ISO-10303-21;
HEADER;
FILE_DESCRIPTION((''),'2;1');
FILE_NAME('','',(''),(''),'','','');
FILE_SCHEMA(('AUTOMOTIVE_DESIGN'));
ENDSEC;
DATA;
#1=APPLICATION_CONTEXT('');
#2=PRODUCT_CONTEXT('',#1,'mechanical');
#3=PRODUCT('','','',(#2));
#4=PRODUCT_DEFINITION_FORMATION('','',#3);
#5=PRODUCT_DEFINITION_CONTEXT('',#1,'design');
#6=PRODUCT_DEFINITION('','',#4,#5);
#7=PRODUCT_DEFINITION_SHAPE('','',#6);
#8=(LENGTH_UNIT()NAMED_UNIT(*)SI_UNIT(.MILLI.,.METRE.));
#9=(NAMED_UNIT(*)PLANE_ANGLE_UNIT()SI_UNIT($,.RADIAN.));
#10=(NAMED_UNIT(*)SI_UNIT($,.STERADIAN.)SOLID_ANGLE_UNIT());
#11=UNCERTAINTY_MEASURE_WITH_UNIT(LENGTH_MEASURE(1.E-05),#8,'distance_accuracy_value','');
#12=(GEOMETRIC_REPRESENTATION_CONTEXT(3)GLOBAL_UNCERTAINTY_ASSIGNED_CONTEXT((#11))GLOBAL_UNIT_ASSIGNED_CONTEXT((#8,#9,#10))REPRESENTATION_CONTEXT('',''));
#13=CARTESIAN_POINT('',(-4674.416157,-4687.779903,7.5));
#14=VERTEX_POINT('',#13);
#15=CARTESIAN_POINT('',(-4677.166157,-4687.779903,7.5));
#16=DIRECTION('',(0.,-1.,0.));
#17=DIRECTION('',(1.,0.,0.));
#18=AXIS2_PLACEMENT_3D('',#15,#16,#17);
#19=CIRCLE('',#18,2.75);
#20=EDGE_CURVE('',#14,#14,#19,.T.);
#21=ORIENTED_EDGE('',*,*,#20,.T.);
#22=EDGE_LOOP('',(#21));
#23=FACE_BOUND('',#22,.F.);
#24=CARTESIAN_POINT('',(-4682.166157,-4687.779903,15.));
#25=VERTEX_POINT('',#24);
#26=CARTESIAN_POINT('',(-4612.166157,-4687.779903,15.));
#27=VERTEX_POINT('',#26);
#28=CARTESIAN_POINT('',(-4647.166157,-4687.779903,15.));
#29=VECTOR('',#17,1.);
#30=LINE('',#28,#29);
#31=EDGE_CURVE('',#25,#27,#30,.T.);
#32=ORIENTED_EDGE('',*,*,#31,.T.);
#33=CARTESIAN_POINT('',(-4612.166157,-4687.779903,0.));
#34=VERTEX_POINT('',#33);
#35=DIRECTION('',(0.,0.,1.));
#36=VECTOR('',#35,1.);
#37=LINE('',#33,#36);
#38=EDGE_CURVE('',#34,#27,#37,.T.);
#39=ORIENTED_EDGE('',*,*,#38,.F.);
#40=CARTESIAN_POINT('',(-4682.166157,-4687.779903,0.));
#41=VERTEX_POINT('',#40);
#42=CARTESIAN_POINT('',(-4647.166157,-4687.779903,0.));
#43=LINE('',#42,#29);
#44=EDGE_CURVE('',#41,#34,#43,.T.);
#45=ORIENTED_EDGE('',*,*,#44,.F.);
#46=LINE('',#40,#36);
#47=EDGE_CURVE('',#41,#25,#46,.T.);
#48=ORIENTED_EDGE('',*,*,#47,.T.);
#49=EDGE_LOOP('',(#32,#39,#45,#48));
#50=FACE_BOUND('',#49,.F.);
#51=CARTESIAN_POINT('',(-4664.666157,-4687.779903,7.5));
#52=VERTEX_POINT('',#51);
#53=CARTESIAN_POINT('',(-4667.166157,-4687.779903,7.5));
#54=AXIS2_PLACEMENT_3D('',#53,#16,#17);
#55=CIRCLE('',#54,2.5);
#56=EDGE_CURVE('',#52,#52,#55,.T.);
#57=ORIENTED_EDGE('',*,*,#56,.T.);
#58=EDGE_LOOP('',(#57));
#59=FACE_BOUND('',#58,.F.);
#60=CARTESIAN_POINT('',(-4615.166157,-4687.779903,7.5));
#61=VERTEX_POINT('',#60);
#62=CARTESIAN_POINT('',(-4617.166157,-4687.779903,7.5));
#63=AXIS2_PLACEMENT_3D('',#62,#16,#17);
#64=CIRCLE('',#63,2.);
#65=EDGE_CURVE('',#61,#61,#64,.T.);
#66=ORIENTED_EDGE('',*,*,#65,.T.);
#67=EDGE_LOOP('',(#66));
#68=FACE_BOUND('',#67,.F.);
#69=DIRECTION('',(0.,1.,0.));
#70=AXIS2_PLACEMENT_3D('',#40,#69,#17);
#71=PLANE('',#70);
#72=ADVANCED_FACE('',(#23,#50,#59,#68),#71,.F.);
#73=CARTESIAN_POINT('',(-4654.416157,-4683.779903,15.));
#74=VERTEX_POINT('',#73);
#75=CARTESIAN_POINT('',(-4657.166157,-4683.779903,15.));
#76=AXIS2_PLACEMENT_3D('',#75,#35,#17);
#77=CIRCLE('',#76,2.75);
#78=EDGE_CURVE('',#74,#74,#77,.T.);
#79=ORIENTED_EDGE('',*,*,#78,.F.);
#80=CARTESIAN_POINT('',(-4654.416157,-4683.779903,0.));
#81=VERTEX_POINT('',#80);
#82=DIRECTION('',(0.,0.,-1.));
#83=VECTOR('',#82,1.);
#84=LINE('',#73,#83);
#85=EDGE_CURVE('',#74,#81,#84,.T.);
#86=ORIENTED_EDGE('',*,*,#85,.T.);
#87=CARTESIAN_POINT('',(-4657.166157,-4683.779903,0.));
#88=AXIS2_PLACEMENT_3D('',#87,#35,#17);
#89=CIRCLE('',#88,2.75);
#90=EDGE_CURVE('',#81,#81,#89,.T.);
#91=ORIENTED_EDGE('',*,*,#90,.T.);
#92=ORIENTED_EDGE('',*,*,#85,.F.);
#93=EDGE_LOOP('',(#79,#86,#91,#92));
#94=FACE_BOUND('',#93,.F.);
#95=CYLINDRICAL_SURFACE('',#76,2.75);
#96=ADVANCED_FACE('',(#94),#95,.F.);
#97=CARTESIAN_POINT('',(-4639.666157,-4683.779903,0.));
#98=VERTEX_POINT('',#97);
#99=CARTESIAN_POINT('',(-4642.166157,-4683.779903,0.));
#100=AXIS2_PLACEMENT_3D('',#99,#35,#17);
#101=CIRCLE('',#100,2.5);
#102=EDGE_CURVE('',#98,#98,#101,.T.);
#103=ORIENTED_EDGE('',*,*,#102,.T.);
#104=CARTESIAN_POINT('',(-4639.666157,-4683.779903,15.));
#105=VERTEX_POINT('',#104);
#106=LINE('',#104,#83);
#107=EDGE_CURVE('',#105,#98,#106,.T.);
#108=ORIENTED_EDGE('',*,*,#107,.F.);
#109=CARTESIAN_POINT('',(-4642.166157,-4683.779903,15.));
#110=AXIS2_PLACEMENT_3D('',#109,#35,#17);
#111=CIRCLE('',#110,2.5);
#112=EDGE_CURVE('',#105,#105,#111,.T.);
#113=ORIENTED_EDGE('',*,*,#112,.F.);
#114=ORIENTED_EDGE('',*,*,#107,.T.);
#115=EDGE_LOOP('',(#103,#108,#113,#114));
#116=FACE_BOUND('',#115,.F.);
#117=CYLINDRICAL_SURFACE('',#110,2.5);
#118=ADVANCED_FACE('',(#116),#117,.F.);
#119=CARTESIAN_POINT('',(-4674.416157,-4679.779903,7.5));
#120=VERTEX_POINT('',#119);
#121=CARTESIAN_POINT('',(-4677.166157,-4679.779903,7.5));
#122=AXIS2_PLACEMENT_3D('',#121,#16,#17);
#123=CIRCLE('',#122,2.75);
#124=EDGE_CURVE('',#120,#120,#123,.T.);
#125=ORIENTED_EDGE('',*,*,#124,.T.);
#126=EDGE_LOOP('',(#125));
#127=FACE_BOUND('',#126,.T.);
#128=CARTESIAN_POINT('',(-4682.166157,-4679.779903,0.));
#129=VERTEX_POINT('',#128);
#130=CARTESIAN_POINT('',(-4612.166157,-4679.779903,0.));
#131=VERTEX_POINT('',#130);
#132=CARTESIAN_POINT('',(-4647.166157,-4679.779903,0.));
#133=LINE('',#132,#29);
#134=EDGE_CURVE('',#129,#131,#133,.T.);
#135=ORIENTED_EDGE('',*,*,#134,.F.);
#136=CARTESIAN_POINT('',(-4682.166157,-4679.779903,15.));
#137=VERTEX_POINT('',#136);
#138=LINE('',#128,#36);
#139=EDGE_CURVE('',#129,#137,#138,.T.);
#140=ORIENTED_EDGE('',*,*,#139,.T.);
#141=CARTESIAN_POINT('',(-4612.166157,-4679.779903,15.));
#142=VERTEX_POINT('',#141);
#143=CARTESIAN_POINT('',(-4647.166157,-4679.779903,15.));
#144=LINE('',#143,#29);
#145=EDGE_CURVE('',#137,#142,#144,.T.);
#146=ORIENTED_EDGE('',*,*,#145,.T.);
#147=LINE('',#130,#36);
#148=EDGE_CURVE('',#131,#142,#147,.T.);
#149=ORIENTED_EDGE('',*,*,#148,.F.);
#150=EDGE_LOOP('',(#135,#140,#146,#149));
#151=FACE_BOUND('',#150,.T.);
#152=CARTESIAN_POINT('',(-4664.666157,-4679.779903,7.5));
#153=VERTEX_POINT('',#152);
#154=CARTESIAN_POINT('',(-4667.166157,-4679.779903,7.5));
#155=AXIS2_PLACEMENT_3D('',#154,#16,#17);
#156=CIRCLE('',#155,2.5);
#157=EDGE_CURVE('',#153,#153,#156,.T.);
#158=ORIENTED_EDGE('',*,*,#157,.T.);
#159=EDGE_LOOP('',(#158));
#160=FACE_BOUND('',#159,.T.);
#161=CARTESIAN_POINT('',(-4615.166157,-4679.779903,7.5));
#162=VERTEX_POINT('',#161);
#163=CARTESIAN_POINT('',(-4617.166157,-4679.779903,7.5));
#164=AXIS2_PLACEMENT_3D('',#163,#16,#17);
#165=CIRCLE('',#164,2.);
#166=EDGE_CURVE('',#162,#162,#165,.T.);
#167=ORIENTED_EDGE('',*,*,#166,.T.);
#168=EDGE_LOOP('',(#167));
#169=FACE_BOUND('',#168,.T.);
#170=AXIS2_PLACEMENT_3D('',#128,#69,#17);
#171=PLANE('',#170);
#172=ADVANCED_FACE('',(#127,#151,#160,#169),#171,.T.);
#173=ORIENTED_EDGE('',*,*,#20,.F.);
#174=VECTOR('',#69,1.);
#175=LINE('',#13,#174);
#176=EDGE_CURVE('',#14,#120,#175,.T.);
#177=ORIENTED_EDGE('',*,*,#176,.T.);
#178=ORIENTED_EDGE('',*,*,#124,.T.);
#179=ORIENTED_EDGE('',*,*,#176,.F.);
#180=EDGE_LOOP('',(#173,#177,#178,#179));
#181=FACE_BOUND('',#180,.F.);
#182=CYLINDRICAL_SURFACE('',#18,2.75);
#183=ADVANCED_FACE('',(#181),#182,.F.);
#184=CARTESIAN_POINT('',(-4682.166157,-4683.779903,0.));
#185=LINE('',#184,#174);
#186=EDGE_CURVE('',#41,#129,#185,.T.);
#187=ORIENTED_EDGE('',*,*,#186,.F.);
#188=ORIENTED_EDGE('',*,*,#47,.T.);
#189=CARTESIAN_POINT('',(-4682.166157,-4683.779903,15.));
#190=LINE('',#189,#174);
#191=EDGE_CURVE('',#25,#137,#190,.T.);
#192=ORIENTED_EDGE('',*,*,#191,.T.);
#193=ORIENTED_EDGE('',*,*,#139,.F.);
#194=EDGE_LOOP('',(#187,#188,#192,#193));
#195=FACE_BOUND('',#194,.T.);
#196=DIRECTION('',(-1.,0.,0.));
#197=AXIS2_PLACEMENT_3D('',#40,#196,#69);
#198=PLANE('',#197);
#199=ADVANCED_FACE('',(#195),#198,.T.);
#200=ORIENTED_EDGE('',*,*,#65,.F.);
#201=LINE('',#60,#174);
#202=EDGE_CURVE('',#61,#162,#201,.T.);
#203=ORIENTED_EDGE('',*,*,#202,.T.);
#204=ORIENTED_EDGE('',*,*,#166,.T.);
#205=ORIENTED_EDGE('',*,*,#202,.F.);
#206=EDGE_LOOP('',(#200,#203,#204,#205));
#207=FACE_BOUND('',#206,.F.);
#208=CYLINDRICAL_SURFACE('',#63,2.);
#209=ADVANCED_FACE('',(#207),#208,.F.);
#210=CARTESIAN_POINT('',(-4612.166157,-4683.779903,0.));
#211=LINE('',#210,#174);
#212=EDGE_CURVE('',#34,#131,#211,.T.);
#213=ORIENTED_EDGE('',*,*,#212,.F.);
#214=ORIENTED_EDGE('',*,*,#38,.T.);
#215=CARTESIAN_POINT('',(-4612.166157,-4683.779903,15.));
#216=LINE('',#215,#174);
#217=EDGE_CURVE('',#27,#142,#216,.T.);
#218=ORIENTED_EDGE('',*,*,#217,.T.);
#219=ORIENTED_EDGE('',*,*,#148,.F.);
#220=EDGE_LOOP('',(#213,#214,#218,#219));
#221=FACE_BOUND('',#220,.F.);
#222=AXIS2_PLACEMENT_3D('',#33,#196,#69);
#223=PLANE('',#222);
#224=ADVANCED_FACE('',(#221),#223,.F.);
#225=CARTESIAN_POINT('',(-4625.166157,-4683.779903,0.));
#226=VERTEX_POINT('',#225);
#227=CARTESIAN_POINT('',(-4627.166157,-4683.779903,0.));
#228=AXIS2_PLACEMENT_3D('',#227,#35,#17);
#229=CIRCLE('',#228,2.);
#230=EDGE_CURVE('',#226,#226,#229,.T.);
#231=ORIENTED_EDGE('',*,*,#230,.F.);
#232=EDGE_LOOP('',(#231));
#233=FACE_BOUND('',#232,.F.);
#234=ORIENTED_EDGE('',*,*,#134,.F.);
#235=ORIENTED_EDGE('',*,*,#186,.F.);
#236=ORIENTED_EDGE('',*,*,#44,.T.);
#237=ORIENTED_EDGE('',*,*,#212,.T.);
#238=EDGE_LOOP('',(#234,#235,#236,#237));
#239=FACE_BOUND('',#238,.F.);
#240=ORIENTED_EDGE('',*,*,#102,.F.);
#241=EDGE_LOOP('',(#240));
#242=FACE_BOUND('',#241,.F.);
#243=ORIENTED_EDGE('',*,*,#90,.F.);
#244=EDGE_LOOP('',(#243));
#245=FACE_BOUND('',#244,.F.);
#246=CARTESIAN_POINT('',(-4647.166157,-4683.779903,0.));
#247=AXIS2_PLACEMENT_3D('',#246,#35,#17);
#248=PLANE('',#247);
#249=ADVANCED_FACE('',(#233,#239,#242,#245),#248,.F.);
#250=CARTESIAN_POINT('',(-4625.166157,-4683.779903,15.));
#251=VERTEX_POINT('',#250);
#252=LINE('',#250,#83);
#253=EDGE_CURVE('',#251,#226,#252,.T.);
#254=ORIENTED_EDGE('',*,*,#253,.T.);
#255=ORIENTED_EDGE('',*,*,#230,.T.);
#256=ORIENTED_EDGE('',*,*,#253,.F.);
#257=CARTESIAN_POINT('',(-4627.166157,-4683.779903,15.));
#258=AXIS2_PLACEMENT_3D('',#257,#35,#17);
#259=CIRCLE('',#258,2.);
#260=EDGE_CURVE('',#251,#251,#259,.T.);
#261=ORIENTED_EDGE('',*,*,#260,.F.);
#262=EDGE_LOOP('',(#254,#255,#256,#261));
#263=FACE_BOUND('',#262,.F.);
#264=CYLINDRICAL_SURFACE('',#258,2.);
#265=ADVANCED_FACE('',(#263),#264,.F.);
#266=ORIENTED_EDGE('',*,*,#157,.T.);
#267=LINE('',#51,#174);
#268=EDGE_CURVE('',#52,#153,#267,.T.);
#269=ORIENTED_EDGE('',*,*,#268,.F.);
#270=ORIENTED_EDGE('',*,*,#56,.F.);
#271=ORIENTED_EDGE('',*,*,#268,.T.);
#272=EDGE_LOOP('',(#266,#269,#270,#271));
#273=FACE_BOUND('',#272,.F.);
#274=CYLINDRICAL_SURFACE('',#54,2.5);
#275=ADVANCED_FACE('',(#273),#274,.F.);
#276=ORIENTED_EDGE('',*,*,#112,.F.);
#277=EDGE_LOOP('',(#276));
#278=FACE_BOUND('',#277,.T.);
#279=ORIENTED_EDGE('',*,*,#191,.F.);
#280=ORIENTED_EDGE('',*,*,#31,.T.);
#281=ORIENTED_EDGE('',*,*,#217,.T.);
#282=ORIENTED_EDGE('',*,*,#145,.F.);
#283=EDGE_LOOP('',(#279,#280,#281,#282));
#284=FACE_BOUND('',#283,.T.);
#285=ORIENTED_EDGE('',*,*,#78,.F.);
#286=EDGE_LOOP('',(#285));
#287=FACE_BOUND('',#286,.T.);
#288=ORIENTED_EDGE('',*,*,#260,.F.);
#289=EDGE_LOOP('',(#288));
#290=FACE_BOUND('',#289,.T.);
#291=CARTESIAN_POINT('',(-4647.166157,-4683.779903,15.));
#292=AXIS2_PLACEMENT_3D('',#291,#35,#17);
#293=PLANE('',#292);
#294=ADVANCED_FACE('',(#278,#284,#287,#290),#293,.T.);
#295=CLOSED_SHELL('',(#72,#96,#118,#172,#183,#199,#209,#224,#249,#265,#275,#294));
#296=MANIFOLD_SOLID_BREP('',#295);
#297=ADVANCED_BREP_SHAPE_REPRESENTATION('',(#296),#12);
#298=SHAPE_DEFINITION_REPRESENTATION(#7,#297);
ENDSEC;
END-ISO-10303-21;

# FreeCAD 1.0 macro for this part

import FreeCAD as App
import Part
import Sketcher
from FreeCAD import Vector
Q = App.Units.Quantity


def add_polygon(sketch, points):
    """Adds a closed chain of lines whose ends are joined by coincident constraints."""
    first, n = sketch.GeometryCount, len(points)
    for a, b in zip(points, points[1:] + points[:1]):
        sketch.addGeometry(Part.LineSegment(App.Vector(*a, 0), App.Vector(*b, 0)), False)
    for i in range(n):
        sketch.addConstraint(Sketcher.Constraint("Coincident", first + i, 2, first + (i + 1) % n, 1))

doc = App.newDocument("Part")
params = doc.addObject("Spreadsheet::Sheet", "Params")
for row, (alias, value) in enumerate([
    ("sketch1_width", "70 mm"),
    ("sketch1_height", "8 mm"),
    ("pad1_length", "15 mm"),
    ("sketch2_diameter", "4 mm"),
    ("sketch2_diameter2", "5 mm"),
    ("sketch2_diameter3", "5.5 mm"),
    ("pocket1_length", "8 mm"),
    ("sketch3_diameter", "5 mm"),
    ("sketch3_diameter2", "4 mm"),
    ("sketch3_diameter3", "5.5 mm"),
    ("pocket2_length", "25 mm"),
], start=1):
    params.set(f"A{row}", alias)
    params.set(f"B{row}", "=" + value)
    params.setAlias(f"B{row}", alias)

body = doc.addObject("PartDesign::Body", "Body")

# Sketch on XY plane
sketch1 = body.newObject("Sketcher::SketchObject", "Sketch")
sketch1.AttachmentSupport = (doc.getObject("XY_Plane"), [""])
sketch1.MapMode = "FlatFace"
add_polygon(sketch1, [(-4682.166157, -4679.779903), (-4682.166157, -4687.779903), (-4612.166157, -4687.779903), (-4612.166157, -4679.779903)])  # lines 0-3
sketch1.addConstraint([
    Sketcher.Constraint("Vertical", 0),
    Sketcher.Constraint("Horizontal", 1),
    Sketcher.Constraint("Vertical", 2),
    Sketcher.Constraint("Horizontal", 3),
    Sketcher.Constraint("DistanceX", 1, 1, 1, 2, Q("70 mm")),
    Sketcher.Constraint("DistanceY", 0, 2, 0, 1, Q("8 mm")),
    Sketcher.Constraint("DistanceX", 0, 2, -1, 1, Q("4682.166157 mm")),
    Sketcher.Constraint("DistanceY", 0, 2, -1, 1, Q("4687.779903 mm")),
])
sketch1.setExpression("Constraints[8]", "Params.sketch1_width")
sketch1.setExpression("Constraints[9]", "Params.sketch1_height")
pad1 = body.newObject("PartDesign::Pad", "Pad")
pad1.Profile = sketch1
pad1.setExpression("Length", "Params.pad1_length")

# Sketch on XZ plane
sketch2 = body.newObject("Sketcher::SketchObject", "Sketch001")
sketch2.AttachmentSupport = (doc.getObject("XZ_Plane"), [""])
sketch2.MapMode = "FlatFace"
sketch2.AttachmentOffset = App.Placement(Vector(0, 0, 4687.779903), App.Rotation())
sketch2.addGeometry([
    Part.Circle(Vector(-4677.166157, 7.5, 0), Vector(0, 0, 1), 2.75),
    Part.Circle(Vector(-4617.166157, 7.5, 0), Vector(0, 0, 1), 2),
    Part.Circle(Vector(-4667.166157, 7.5, 0), Vector(0, 0, 1), 2.5),
], False)
sketch2.addConstraint([
    Sketcher.Constraint("Horizontal", 0, 3, 1, 3),
    Sketcher.Constraint("Horizontal", 1, 3, 2, 3),
    Sketcher.Constraint("Diameter", 1, Q("4 mm")),
    Sketcher.Constraint("Diameter", 2, Q("5 mm")),
    Sketcher.Constraint("Diameter", 0, Q("5.5 mm")),
    Sketcher.Constraint("DistanceX", 0, 3, 1, 3, Q("60 mm")),
    Sketcher.Constraint("DistanceX", 0, 3, 2, 3, Q("10 mm")),
    Sketcher.Constraint("DistanceY", -1, 1, 0, 3, Q("7.5 mm")),
    Sketcher.Constraint("DistanceX", 0, 3, -1, 1, Q("4677.166157 mm")),
])
sketch2.setExpression("Constraints[2]", "Params.sketch2_diameter")
sketch2.setExpression("Constraints[3]", "Params.sketch2_diameter2")
sketch2.setExpression("Constraints[4]", "Params.sketch2_diameter3")
pocket1 = body.newObject("PartDesign::Pocket", "Pocket")
pocket1.Profile = sketch2
pocket1.setExpression("Length", "Params.pocket1_length")

# Sketch on XY plane
sketch3 = body.newObject("Sketcher::SketchObject", "Sketch002")
sketch3.AttachmentSupport = (doc.getObject("XY_Plane"), [""])
sketch3.MapMode = "FlatFace"
sketch3.AttachmentOffset = App.Placement(Vector(0, 0, 15), App.Rotation())
sketch3.addGeometry([
    Part.Circle(Vector(-4657.166157, -4683.779903, 0), Vector(0, 0, 1), 2.75),
    Part.Circle(Vector(-4642.166157, -4683.779903, 0), Vector(0, 0, 1), 2.5),
    Part.Circle(Vector(-4627.166157, -4683.779903, 0), Vector(0, 0, 1), 2),
], False)
sketch3.addConstraint([
    Sketcher.Constraint("Horizontal", 0, 3, 1, 3),
    Sketcher.Constraint("Horizontal", 1, 3, 2, 3),
    Sketcher.Constraint("Diameter", 1, Q("5 mm")),
    Sketcher.Constraint("Diameter", 2, Q("4 mm")),
    Sketcher.Constraint("Diameter", 0, Q("5.5 mm")),
    Sketcher.Constraint("DistanceX", 0, 3, 1, 3, Q("15 mm")),
    Sketcher.Constraint("DistanceX", 1, 3, 2, 3, Q("15 mm")),
    Sketcher.Constraint("DistanceX", 0, 3, -1, 1, Q("4657.166157 mm")),
    Sketcher.Constraint("DistanceY", 0, 3, -1, 1, Q("4683.779903 mm")),
])
sketch3.setExpression("Constraints[2]", "Params.sketch3_diameter")
sketch3.setExpression("Constraints[3]", "Params.sketch3_diameter2")
sketch3.setExpression("Constraints[4]", "Params.sketch3_diameter3")
pocket2 = body.newObject("PartDesign::Pocket", "Pocket001")
pocket2.Profile = sketch3
pocket2.setExpression("Length", "Params.pocket2_length")

doc.recompute()
